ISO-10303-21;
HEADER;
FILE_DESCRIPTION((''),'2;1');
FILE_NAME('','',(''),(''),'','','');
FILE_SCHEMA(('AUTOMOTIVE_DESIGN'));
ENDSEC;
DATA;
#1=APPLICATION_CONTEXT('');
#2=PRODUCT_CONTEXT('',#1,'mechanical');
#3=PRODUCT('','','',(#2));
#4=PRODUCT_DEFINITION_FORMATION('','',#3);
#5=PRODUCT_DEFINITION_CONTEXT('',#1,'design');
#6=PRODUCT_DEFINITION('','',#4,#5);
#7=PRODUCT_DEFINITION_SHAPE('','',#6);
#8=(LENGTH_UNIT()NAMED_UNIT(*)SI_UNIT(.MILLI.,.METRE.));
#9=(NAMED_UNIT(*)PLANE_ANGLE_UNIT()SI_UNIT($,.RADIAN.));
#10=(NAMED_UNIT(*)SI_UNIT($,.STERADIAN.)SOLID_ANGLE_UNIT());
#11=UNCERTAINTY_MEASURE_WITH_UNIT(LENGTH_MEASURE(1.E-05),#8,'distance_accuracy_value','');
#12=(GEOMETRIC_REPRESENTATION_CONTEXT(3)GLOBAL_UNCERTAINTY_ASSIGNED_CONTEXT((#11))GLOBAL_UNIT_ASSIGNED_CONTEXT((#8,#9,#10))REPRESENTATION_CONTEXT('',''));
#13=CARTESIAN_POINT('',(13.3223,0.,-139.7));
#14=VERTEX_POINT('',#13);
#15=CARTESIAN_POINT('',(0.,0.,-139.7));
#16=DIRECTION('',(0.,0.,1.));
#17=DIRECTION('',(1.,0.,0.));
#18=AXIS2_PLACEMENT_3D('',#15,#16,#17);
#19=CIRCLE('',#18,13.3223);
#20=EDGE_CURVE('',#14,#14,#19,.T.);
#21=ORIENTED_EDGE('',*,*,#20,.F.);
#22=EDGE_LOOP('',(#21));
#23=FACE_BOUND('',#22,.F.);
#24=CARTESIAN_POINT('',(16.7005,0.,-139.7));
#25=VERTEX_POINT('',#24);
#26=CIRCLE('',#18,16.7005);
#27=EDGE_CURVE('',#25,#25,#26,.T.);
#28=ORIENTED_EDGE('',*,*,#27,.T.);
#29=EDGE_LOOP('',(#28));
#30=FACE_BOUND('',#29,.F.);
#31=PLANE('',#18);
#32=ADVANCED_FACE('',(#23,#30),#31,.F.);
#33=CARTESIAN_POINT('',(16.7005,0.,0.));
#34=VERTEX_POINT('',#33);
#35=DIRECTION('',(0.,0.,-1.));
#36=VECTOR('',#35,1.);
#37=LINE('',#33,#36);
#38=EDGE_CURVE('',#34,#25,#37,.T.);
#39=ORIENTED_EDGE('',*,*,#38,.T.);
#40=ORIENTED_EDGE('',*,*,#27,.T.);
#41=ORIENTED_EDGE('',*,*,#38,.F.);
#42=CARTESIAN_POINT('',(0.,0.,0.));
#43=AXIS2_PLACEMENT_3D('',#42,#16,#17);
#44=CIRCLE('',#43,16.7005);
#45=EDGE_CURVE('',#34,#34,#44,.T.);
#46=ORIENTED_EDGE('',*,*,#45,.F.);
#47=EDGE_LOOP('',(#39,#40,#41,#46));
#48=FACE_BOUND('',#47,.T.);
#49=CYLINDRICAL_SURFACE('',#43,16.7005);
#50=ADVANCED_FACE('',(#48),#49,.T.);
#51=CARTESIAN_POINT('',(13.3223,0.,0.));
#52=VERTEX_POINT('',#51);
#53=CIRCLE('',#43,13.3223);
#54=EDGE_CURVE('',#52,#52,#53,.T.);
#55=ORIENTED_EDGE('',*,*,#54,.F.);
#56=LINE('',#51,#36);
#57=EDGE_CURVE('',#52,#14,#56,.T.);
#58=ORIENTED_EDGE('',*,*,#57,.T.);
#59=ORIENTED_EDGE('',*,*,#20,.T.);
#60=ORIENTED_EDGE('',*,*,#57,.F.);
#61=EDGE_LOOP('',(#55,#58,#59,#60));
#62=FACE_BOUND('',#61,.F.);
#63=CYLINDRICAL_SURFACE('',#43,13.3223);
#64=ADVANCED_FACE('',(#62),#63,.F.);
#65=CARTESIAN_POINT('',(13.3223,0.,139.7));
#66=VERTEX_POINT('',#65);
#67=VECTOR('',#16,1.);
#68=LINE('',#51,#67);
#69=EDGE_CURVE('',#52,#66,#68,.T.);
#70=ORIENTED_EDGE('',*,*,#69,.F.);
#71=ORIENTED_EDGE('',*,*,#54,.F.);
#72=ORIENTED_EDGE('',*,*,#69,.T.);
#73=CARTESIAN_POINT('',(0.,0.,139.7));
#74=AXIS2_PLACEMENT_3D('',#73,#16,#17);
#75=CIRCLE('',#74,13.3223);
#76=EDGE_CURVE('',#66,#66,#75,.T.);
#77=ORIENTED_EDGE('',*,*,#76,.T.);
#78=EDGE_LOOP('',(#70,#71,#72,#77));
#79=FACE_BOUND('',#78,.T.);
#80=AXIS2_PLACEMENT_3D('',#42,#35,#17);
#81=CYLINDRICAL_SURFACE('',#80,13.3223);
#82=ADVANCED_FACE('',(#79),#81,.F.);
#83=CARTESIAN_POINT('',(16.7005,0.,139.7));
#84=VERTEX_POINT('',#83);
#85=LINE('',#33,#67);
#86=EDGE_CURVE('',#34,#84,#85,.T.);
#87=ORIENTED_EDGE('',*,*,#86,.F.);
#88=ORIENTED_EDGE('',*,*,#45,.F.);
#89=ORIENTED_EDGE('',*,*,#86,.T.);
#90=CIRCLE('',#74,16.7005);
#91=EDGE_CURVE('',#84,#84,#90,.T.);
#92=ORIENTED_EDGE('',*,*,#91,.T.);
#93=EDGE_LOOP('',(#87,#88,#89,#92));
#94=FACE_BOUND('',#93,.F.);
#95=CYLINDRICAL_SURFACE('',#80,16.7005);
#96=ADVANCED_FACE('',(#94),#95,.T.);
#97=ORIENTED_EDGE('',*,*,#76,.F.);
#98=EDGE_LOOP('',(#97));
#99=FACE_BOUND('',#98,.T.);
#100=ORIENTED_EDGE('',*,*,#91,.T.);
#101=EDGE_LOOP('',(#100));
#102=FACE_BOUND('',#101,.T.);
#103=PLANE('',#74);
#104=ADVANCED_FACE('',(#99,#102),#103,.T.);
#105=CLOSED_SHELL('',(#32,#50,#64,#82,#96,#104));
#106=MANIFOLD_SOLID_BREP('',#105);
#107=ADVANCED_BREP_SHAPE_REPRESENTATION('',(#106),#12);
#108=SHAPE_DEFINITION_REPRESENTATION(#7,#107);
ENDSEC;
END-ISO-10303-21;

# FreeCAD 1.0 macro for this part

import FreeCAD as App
import Part
import Sketcher
from FreeCAD import Vector
Q = App.Units.Quantity

doc = App.newDocument("Part")
params = doc.addObject("Spreadsheet::Sheet", "Params")
for row, (alias, value) in enumerate([
    ("sketch1_diameter", "1.315 in"),
    ("sketch1_diameter2", "1.049 in"),
    ("pad1_length", "11 in"),
], start=1):
    params.set(f"A{row}", alias)
    params.set(f"B{row}", "=" + value)
    params.setAlias(f"B{row}", alias)

body = doc.addObject("PartDesign::Body", "Body")

sketch1 = doc.addObject("Sketcher::SketchObject", "Sketch")
body.addObject(sketch1)
sketch1.AttachmentSupport = (doc.XY_Plane, [""])
sketch1.MapMode = "FlatFace"
sketch1.addGeometry([
    Part.Circle(Vector(0, 0, 0), Vector(0, 0, 1), 17),
    Part.Circle(Vector(0, 0, 0), Vector(0, 0, 1), 13),
], False)
sketch1.addConstraint([
    Sketcher.Constraint("Coincident", 0, 3, -1, 1),
    Sketcher.Constraint("Coincident", 1, 3, -1, 1),
    Sketcher.Constraint("Diameter", 0, Q("1.315 in")),
    Sketcher.Constraint("Diameter", 1, Q("1.049 in")),
])
sketch1.setExpression("Constraints[2]", "Params.sketch1_diameter")
sketch1.setExpression("Constraints[3]", "Params.sketch1_diameter2")
pad1 = doc.addObject("PartDesign::Pad", "Pad")
body.addObject(pad1)
pad1.Profile = sketch1
pad1.setExpression("Length", "Params.pad1_length")
pad1.Midplane = True

doc.recompute()
